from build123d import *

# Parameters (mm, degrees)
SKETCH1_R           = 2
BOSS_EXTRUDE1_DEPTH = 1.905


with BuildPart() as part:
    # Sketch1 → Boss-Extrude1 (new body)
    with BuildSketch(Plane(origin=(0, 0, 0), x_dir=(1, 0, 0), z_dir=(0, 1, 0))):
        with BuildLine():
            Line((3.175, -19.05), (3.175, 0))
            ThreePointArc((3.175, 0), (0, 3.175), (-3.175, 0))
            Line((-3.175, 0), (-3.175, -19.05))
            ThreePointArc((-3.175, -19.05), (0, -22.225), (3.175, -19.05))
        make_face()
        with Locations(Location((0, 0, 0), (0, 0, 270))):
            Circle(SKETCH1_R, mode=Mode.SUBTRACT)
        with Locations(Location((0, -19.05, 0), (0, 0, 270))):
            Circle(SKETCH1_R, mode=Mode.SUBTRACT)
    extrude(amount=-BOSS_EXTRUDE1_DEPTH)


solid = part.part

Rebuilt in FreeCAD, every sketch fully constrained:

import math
import FreeCAD as App
import Part
import Sketcher
Q = App.Units.Quantity

doc = App.newDocument("Part")
body = doc.addObject("PartDesign::Body", "Body")

# Sketch on XZ plane
sketch1 = doc.addObject("Sketcher::SketchObject", "Sketch")
body.addObject(sketch1)
sketch1.AttachmentSupport = (doc.XZ_Plane, [""])
sketch1.MapMode = "FlatFace"
sketch1.addGeometry(Part.LineSegment(App.Vector(3.2, 19.1, 0), App.Vector(3.2, 0, 0)), False)
sketch1.addGeometry(Part.ArcOfCircle(Part.Circle(App.Vector(0, 0, 0), App.Vector(0, 0, 1), 3.2), math.radians(180), math.radians(360)), False)
sketch1.addGeometry(Part.LineSegment(App.Vector(-3.2, 0, 0), App.Vector(-3.2, 19.1, 0)), False)
sketch1.addGeometry(Part.ArcOfCircle(Part.Circle(App.Vector(0, 19.1, 0), App.Vector(0, 0, 1), 3.2), math.radians(0), math.radians(180)), False)
sketch1.addGeometry(Part.Circle(App.Vector(0, 19.1, 0), App.Vector(0, 0, 1), 2), False)
sketch1.addGeometry(Part.Circle(App.Vector(0, 0, 0), App.Vector(0, 0, 1), 2), False)
sketch1.addConstraint(Sketcher.Constraint("Tangent", 0, 2, 1, 2))
sketch1.addConstraint(Sketcher.Constraint("Tangent", 1, 1, 2, 1))
sketch1.addConstraint(Sketcher.Constraint("Tangent", 2, 2, 3, 2))
sketch1.addConstraint(Sketcher.Constraint("Tangent", 3, 1, 0, 1))
sketch1.addConstraint(Sketcher.Constraint("Vertical", 0))
sketch1.addConstraint(Sketcher.Constraint("Vertical", 2))
sketch1.addConstraint(Sketcher.Constraint("Coincident", 1, 3, -1, 1))
sketch1.addConstraint(Sketcher.Constraint("Coincident", 5, 3, -1, 1))
sketch1.addConstraint(Sketcher.Constraint("Coincident", 4, 3, 3, 3))
sketch1.addConstraint(Sketcher.Constraint("Equal", 4, 5))
sketch1.addConstraint(Sketcher.Constraint("Radius", 1, Q("0.125 in")))
sketch1.addConstraint(Sketcher.Constraint("DistanceY", 0, 2, 0, 1, Q("0.75 in")))
sketch1.addConstraint(Sketcher.Constraint("Diameter", 4, 4.0))
pad1 = doc.addObject("PartDesign::Pad", "Pad")
body.addObject(pad1)
pad1.Profile = sketch1
pad1.Length = Q("0.075 in")

doc.recompute()
